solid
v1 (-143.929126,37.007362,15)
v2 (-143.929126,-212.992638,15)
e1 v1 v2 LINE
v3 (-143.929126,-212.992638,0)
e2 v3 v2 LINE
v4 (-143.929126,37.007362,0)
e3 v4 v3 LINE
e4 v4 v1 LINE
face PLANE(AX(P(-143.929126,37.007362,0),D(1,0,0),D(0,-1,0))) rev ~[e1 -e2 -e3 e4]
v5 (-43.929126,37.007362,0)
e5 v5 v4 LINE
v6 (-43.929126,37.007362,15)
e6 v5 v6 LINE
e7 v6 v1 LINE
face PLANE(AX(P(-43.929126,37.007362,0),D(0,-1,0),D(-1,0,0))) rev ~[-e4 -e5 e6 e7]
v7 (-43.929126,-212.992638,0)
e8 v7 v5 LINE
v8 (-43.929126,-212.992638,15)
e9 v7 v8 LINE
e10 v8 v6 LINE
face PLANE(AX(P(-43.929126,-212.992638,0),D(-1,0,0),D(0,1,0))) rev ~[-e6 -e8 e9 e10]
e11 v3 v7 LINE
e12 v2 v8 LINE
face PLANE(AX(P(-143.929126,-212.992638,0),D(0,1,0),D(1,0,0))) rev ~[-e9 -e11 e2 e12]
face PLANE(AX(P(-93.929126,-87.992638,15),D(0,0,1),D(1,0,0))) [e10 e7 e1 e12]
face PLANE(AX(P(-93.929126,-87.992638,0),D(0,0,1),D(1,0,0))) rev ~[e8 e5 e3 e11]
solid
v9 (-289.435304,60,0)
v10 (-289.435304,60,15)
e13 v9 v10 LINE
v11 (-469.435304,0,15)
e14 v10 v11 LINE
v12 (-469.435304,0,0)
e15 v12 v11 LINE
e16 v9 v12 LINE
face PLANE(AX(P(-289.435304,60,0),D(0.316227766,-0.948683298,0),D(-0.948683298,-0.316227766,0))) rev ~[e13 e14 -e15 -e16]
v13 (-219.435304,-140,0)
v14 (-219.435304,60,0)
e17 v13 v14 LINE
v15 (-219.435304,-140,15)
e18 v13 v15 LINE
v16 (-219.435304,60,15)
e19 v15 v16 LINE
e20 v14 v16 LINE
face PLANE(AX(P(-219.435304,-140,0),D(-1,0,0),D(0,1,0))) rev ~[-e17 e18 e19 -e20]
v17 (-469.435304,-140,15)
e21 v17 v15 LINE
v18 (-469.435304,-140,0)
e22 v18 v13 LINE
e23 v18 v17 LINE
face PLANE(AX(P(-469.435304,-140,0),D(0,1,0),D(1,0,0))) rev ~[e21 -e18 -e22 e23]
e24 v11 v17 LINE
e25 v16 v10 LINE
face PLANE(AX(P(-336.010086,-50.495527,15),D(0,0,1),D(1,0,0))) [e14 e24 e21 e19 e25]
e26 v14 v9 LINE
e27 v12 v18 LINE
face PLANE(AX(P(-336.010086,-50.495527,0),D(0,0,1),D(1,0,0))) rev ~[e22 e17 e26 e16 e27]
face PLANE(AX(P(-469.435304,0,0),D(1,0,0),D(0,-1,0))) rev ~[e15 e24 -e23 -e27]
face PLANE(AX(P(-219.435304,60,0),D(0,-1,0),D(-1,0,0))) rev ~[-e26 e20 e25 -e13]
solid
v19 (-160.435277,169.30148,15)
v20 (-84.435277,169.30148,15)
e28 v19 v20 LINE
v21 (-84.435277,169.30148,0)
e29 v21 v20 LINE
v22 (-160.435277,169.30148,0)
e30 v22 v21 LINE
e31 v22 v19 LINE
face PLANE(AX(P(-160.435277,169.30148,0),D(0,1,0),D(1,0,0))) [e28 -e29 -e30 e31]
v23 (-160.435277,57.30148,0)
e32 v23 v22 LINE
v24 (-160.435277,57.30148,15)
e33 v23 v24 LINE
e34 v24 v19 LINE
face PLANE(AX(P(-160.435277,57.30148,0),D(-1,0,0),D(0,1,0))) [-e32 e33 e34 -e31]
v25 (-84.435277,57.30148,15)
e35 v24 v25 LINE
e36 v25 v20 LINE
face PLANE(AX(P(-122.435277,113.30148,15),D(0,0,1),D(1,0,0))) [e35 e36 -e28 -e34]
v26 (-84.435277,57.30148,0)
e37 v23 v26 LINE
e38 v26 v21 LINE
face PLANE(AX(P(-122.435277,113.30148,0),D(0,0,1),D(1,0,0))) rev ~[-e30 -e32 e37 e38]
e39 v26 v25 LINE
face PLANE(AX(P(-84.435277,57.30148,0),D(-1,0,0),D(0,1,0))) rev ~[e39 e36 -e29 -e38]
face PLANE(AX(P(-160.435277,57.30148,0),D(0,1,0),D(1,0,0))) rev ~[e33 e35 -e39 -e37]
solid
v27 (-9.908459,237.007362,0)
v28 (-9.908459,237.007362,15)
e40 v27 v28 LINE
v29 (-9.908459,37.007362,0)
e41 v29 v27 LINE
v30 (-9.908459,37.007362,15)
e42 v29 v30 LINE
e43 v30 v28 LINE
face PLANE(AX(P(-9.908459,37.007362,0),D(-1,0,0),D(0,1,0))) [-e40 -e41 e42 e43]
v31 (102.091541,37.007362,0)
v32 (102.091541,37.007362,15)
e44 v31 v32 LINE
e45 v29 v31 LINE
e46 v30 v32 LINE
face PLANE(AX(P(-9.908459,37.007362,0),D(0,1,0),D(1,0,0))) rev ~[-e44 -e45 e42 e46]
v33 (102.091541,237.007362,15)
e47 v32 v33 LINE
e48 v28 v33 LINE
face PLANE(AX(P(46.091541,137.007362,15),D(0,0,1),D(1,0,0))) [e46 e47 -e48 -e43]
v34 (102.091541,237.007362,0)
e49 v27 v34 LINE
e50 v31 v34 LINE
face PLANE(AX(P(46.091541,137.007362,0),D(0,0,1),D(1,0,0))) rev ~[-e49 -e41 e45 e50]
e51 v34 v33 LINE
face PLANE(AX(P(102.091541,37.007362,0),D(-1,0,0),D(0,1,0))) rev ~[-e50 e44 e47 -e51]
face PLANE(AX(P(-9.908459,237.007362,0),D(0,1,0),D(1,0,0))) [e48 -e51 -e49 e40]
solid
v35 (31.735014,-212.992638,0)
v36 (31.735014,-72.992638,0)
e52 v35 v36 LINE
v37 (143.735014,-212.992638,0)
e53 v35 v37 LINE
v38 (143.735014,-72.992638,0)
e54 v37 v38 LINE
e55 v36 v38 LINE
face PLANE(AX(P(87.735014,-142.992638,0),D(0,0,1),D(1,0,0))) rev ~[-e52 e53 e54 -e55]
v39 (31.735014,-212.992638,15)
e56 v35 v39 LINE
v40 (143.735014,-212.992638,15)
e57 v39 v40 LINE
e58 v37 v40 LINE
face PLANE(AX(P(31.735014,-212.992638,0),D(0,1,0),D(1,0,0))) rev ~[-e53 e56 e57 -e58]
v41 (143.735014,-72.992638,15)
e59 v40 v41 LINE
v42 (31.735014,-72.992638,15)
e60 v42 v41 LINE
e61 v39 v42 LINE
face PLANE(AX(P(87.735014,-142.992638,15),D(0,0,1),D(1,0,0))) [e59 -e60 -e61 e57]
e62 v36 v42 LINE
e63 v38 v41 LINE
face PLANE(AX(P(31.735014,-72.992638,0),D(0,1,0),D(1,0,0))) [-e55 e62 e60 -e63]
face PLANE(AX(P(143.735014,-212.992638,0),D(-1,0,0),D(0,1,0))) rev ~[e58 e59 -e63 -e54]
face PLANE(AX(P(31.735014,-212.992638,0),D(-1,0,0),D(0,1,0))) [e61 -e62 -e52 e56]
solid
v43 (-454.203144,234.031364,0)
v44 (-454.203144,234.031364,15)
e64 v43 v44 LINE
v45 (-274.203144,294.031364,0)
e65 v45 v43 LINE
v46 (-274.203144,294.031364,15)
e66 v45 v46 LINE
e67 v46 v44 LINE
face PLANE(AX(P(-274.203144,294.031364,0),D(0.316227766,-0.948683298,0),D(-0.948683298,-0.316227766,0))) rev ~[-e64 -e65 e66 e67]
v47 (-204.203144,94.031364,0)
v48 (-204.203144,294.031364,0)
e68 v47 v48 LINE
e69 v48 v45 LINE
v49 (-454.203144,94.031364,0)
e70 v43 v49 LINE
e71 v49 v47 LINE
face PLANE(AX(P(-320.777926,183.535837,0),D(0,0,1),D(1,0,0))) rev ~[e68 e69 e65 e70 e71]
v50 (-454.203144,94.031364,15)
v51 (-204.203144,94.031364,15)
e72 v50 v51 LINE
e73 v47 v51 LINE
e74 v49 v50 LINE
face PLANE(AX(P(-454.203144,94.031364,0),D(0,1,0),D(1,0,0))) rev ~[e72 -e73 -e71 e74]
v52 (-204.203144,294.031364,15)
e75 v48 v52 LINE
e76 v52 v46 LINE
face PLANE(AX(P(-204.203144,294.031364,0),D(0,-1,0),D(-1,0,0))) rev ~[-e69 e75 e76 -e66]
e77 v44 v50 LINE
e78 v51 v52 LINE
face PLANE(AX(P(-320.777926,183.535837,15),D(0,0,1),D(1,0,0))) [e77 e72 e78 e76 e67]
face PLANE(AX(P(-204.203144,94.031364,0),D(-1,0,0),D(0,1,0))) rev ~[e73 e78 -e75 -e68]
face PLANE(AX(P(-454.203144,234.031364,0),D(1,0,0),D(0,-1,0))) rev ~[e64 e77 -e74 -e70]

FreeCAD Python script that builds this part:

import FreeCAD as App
import Part
import Sketcher

V = App.Vector
Q = App.Units.Quantity


def add_polygon(sketch, points):
    """Adds a closed chain of lines whose ends are joined by coincident constraints."""
    first, n = sketch.GeometryCount, len(points)
    for a, b in zip(points, points[1:] + points[:1]):
        sketch.addGeometry(Part.LineSegment(App.Vector(*a, 0), App.Vector(*b, 0)), False)
    for i in range(n):
        sketch.addConstraint(Sketcher.Constraint("Coincident", first + i, 2, first + (i + 1) % n, 1))

doc = App.newDocument("Part")
body = doc.addObject("PartDesign::Body", "Body")
body.AllowCompound = True

# Sketch on XY plane
sketch1 = body.newObject("Sketcher::SketchObject", "Sketch")
sketch1.AttachmentSupport = (doc.getObject("XY_Plane"), [""])
sketch1.MapMode = "FlatFace"
add_polygon(sketch1, [(-43.929126, 37.007362), (-143.929126, 37.007362), (-143.929126, -212.992638), (-43.929126, -212.992638)])  # lines 0-3
add_polygon(sketch1, [(-9.908459, 237.007362), (-9.908459, 37.007362), (102.091541, 37.007362), (102.091541, 237.007362)])  # lines 4-7
add_polygon(sketch1, [(31.735014, -72.992638), (31.735014, -212.992638), (143.735014, -212.992638), (143.735014, -72.992638)])  # lines 8-11
add_polygon(sketch1, [(-160.435277, 169.30148), (-160.435277, 57.30148), (-84.435277, 57.30148), (-84.435277, 169.30148)])  # lines 12-15
add_polygon(sketch1, [(-219.435304, 60), (-289.435304, 60), (-469.435304, 0), (-469.435304, -140), (-219.435304, -140)])  # lines 16-20
add_polygon(sketch1, [(-204.203144, 294.031364), (-274.203144, 294.031364), (-454.203144, 234.031364), (-454.203144, 94.031364), (-204.203144, 94.031364)])  # lines 21-25
sketch1.addConstraint([
    Sketcher.Constraint("Horizontal", 0),
    Sketcher.Constraint("Vertical", 1),
    Sketcher.Constraint("Horizontal", 2),
    Sketcher.Constraint("Vertical", 3),
    Sketcher.Constraint("Vertical", 4),
    Sketcher.Constraint("Horizontal", 5),
    Sketcher.Constraint("Vertical", 6),
    Sketcher.Constraint("Horizontal", 7),
    Sketcher.Constraint("Vertical", 8),
    Sketcher.Constraint("Horizontal", 9),
    Sketcher.Constraint("Vertical", 10),
    Sketcher.Constraint("Horizontal", 11),
    Sketcher.Constraint("Vertical", 12),
    Sketcher.Constraint("Horizontal", 13),
    Sketcher.Constraint("Vertical", 14),
    Sketcher.Constraint("Horizontal", 15),
    Sketcher.Constraint("Horizontal", 16),
    Sketcher.Constraint("Vertical", 18),
    Sketcher.Constraint("Horizontal", 19),
    Sketcher.Constraint("Vertical", 20),
    Sketcher.Constraint("Horizontal", 21),
    Sketcher.Constraint("Vertical", 23),
    Sketcher.Constraint("Horizontal", 24),
    Sketcher.Constraint("Vertical", 25),
    Sketcher.Constraint("PointOnObject", 17, 2, -1),
    Sketcher.Constraint("Parallel", 17, 22),
    Sketcher.Constraint("Horizontal", 3, 2, 4, 2),
    Sketcher.Constraint("Horizontal", 2, 2, 8, 2),
    Sketcher.Constraint("Equal", 7, 9),
    Sketcher.Constraint("Equal", 16, 21),
    Sketcher.Constraint("Equal", 19, 24),
    Sketcher.Constraint("Equal", 24, 1),
    Sketcher.Constraint("Equal", 11, 12),
    Sketcher.Constraint("Equal", 10, 18),
    Sketcher.Constraint("Equal", 6, 20),
    Sketcher.Constraint("Equal", 18, 23),
    Sketcher.Constraint("DistanceX", 0, 2, 0, 1, Q("100 mm")),
    Sketcher.Constraint("DistanceX", 5, 1, 5, 2, Q("112 mm")),
    Sketcher.Constraint("DistanceX", 13, 1, 13, 2, Q("76 mm")),
    Sketcher.Constraint("DistanceX", 16, 2, 16, 1, Q("70 mm")),
    Sketcher.Constraint("DistanceX", 19, 1, 19, 2, Q("250 mm")),
    Sketcher.Constraint("DistanceY", 4, 2, 4, 1, Q("200 mm")),
    Sketcher.Constraint("DistanceY", 8, 2, 8, 1, Q("140 mm")),
    Sketcher.Constraint("DistanceY", 0, 2, 24, 2, Q("57.024002 mm")),
    Sketcher.Constraint("DistanceY", 1, 2, -1, 1, Q("212.992638 mm")),
    Sketcher.Constraint("DistanceX", 4, 2, -1, 1, Q("9.908459 mm")),
    Sketcher.Constraint("DistanceY", -1, 1, 12, 2, Q("57.30148 mm")),
    Sketcher.Constraint("DistanceX", 2, 2, 8, 2, Q("75.66414 mm")),
    Sketcher.Constraint("DistanceX", 12, 2, 0, 2, Q("16.506151 mm")),
    Sketcher.Constraint("DistanceX", 12, 2, 4, 2, Q("150.526818 mm")),
    Sketcher.Constraint("DistanceX", 17, 2, 0, 2, Q("325.506178 mm")),
    Sketcher.Constraint("DistanceX", 16, 2, 21, 2, Q("15.23216 mm")),
])
pad1 = body.newObject("PartDesign::Pad", "Pad")
pad1.Profile = sketch1
pad1.Length = 15

doc.recompute()
